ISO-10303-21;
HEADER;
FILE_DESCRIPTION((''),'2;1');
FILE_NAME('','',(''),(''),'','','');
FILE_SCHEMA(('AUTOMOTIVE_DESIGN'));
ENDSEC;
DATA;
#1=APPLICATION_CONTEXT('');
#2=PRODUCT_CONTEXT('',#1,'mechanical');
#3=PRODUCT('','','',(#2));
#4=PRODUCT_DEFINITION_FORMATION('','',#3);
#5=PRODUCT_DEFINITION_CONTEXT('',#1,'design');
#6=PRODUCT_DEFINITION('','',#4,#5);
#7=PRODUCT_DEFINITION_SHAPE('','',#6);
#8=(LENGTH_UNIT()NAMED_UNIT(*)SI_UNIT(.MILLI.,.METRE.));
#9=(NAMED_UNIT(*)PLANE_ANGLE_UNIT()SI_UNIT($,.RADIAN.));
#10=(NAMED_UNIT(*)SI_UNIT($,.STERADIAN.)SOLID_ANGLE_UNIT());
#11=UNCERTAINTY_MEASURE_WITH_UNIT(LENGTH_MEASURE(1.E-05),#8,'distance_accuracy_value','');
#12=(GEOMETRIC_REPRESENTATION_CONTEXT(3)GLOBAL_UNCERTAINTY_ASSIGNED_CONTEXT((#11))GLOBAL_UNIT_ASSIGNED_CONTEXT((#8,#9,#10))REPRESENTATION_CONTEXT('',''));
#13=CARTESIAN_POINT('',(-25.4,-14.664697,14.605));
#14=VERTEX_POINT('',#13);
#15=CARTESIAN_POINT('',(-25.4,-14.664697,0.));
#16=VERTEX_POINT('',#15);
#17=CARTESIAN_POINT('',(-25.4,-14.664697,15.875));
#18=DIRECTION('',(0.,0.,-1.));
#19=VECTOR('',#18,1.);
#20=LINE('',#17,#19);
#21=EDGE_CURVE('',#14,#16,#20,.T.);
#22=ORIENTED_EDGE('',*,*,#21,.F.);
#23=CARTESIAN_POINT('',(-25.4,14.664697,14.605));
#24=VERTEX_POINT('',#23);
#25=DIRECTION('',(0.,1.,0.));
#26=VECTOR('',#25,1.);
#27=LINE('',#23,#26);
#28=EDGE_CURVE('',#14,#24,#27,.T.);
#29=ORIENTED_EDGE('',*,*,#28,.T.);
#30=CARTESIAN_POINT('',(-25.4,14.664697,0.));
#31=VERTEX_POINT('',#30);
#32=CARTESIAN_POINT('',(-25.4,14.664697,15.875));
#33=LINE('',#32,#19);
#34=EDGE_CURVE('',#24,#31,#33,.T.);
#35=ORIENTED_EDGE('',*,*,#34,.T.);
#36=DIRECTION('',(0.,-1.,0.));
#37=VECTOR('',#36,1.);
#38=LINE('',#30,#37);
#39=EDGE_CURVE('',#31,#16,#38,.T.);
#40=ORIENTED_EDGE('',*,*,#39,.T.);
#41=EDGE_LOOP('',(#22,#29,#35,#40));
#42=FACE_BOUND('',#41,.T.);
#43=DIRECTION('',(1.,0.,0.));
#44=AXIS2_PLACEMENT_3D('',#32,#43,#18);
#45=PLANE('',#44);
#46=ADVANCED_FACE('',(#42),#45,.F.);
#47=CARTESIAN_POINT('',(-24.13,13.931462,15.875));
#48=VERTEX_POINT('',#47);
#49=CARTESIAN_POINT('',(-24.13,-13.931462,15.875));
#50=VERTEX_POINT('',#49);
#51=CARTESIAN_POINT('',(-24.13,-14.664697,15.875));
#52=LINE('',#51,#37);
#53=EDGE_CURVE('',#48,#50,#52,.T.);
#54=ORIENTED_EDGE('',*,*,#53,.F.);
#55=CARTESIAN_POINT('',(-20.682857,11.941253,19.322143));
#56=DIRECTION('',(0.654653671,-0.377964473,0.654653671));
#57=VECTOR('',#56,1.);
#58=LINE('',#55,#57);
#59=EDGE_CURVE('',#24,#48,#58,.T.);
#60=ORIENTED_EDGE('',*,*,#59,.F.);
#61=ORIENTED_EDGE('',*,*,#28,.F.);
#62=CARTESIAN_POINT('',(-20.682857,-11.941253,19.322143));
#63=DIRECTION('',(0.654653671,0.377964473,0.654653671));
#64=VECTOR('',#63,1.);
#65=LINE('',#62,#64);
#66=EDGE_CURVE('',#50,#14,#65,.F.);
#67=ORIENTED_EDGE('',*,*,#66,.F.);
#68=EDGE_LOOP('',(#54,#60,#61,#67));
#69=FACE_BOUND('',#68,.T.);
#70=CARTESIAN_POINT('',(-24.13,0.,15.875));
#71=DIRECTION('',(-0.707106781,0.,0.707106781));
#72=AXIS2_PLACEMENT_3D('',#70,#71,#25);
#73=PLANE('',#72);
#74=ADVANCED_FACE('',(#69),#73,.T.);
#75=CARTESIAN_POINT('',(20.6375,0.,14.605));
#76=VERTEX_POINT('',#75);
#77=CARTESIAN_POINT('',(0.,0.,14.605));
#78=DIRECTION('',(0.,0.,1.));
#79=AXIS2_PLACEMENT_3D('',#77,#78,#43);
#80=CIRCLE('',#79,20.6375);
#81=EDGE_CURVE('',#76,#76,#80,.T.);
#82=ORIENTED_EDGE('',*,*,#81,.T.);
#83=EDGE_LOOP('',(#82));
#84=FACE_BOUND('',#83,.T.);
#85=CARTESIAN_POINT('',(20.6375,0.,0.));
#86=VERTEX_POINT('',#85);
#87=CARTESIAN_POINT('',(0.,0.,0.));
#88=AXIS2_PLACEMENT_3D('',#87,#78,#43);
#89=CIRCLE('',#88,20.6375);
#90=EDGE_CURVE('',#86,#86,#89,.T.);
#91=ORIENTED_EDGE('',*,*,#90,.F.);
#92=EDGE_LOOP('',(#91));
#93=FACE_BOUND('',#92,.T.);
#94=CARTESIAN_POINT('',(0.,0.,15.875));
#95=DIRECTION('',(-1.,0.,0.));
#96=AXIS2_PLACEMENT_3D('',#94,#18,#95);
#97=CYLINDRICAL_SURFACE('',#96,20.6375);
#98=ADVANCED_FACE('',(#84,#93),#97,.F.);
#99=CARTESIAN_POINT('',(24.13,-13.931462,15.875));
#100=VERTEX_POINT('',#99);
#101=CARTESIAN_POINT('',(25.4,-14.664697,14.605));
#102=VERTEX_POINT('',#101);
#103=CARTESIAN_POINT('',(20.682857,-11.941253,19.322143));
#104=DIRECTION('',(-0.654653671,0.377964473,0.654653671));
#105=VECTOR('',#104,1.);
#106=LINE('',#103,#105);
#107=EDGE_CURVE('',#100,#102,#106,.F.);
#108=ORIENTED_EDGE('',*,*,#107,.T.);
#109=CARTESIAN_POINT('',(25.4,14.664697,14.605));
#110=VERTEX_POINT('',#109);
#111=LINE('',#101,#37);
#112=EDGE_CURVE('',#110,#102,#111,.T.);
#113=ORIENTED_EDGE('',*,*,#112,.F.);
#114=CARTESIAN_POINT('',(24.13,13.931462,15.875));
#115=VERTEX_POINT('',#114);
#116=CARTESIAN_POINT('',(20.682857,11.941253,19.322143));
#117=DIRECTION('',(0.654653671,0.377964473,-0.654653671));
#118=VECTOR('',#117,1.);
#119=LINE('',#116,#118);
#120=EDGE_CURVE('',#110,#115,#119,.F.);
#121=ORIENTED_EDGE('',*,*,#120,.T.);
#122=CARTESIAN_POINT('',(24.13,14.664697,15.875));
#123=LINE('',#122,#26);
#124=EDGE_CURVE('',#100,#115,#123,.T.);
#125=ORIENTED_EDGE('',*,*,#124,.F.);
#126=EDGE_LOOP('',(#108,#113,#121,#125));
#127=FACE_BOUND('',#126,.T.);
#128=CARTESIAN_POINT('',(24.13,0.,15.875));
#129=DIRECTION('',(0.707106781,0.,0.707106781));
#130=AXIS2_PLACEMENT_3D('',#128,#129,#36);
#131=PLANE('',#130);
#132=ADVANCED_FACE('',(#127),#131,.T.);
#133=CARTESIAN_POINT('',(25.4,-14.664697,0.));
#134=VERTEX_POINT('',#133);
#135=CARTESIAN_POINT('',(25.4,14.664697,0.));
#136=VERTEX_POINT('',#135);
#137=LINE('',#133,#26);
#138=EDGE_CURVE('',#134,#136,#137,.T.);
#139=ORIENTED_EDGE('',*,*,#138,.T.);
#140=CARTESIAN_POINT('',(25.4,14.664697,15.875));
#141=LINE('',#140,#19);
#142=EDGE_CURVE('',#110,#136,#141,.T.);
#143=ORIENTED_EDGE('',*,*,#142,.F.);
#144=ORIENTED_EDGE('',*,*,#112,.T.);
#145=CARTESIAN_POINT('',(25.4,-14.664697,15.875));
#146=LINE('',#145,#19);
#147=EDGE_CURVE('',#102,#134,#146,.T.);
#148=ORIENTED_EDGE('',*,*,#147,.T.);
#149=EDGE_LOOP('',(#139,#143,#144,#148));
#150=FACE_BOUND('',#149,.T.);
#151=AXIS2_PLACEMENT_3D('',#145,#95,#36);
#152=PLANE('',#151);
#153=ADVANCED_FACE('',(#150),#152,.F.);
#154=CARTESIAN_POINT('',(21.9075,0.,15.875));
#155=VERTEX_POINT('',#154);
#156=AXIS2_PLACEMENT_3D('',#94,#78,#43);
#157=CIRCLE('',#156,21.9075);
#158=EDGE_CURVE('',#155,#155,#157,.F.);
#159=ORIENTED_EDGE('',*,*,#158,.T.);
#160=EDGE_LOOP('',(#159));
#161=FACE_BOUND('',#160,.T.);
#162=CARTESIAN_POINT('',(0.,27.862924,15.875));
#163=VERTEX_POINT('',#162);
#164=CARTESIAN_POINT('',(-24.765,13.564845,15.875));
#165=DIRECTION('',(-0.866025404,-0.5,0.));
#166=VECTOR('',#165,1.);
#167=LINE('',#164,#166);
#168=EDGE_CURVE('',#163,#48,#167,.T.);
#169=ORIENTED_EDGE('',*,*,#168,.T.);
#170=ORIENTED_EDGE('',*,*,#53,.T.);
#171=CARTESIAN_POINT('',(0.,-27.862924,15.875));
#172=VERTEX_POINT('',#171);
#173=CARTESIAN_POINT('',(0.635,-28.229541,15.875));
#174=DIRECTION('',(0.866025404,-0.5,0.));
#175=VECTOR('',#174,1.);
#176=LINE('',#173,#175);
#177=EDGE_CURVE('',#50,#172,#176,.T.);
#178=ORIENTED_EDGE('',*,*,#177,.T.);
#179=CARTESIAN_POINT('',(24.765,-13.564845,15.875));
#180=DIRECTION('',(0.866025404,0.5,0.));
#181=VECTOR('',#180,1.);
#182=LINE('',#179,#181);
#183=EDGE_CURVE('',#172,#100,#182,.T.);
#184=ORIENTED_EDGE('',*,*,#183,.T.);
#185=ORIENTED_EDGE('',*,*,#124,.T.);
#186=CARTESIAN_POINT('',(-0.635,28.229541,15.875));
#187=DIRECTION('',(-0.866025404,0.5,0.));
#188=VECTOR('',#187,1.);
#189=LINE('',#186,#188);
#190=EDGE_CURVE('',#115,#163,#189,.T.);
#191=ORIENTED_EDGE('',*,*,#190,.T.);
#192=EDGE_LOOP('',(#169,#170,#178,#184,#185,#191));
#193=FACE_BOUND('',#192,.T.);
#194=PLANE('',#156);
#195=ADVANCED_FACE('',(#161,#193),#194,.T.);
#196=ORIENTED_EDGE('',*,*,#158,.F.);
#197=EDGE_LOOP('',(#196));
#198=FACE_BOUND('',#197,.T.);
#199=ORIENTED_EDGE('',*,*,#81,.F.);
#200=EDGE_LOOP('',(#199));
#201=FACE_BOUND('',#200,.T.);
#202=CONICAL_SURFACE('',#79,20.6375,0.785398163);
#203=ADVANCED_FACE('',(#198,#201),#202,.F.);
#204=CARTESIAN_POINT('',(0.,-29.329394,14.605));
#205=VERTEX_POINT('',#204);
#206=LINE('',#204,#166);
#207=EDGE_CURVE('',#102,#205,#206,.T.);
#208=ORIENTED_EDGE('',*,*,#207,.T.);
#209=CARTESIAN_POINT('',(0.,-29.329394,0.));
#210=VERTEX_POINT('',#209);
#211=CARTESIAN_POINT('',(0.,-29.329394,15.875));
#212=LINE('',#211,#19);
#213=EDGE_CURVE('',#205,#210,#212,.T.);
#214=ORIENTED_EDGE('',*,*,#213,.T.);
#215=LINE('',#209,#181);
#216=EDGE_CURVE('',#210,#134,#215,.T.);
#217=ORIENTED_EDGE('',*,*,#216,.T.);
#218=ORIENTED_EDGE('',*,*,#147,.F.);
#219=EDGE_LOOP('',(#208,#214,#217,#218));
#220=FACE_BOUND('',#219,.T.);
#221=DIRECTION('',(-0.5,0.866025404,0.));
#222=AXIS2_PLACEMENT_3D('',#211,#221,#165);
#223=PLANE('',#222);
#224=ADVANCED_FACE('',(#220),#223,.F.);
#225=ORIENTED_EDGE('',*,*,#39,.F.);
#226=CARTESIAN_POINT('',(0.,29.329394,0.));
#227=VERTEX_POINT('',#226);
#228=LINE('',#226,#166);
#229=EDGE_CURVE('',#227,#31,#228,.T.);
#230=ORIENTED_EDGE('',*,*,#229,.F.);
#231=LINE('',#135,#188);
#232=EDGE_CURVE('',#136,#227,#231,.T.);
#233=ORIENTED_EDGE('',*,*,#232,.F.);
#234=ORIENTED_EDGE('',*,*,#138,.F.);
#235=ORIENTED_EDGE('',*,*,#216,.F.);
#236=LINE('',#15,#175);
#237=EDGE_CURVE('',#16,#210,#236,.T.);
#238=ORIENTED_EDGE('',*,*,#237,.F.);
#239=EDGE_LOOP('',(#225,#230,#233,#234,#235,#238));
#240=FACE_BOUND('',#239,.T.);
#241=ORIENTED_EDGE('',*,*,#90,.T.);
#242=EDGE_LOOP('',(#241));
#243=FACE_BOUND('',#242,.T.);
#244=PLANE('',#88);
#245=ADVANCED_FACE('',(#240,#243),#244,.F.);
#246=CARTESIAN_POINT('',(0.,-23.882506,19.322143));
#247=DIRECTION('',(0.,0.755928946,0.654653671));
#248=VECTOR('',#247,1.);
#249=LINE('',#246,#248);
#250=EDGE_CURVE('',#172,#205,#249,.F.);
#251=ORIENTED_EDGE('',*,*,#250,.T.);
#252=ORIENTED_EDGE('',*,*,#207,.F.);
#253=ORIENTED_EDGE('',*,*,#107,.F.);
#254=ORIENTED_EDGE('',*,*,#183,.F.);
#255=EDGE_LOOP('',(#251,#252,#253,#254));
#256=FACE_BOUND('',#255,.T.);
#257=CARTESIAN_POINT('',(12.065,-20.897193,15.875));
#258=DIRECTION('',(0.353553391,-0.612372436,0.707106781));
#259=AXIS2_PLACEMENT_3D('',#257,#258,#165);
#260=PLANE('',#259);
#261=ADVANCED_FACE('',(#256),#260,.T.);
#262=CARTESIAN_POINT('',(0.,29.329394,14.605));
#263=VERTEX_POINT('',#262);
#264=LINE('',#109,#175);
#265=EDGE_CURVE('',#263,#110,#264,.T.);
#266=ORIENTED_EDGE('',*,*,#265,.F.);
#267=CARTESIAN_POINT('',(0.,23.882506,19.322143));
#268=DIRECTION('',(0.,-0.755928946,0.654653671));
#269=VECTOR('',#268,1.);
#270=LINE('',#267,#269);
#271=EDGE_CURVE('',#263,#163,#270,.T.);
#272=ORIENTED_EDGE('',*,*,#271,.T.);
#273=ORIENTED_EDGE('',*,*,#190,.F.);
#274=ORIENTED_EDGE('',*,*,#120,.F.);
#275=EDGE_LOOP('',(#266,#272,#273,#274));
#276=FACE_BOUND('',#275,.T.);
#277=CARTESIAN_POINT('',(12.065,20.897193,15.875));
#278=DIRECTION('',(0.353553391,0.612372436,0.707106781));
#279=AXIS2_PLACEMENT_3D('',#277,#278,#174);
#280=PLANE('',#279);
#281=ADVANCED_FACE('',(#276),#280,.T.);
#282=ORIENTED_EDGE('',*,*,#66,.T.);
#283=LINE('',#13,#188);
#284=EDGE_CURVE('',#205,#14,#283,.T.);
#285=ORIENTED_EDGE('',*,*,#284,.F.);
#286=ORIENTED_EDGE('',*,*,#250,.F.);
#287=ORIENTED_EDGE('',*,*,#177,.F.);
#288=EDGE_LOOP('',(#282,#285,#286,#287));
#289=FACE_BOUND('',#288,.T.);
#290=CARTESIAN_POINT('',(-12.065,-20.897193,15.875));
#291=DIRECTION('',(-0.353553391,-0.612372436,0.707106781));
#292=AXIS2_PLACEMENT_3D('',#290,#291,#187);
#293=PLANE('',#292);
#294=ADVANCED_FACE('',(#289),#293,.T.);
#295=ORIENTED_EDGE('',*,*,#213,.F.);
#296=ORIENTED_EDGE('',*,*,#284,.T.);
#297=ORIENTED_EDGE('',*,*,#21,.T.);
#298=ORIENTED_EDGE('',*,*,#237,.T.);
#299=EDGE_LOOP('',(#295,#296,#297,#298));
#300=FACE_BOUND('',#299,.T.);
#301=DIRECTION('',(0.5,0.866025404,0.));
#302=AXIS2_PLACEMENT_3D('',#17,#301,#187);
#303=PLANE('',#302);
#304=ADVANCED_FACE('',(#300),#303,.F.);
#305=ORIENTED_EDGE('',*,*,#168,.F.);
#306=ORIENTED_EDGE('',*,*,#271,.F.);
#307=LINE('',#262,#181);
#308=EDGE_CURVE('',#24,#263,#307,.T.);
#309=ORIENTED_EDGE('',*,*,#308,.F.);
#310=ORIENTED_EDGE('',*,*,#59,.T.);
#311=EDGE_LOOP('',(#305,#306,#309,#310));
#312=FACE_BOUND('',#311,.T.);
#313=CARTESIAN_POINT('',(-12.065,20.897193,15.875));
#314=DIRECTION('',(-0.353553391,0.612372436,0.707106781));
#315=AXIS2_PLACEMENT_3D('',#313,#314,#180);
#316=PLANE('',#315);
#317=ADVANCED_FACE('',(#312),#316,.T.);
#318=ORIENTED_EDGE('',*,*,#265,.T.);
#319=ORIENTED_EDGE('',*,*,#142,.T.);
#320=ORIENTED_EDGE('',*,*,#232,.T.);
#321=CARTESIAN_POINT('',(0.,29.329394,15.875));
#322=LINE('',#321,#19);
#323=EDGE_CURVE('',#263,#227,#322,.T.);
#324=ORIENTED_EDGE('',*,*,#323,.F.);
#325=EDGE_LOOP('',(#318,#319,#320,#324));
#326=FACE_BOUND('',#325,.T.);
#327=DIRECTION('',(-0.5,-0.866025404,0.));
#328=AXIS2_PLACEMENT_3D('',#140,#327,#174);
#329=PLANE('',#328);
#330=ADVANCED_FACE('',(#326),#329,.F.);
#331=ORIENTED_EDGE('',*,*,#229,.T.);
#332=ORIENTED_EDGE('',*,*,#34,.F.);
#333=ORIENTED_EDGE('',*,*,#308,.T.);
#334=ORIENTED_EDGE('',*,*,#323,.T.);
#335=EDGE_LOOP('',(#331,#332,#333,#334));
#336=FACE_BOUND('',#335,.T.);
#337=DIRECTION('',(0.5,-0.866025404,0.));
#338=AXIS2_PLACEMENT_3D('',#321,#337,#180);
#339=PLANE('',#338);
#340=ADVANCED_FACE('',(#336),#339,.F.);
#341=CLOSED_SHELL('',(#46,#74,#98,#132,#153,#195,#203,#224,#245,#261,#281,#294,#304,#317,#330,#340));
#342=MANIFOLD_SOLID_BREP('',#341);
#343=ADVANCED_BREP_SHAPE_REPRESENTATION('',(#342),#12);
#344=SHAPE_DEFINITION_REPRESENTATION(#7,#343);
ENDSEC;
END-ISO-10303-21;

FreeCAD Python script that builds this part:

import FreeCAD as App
import Part
import Sketcher
from FreeCAD import Vector
Q = App.Units.Quantity


def edges_at(feature, points):
    """Names of the edges that pass closest to the given points."""
    edges = feature.Shape.Edges
    near = lambda p: min(range(len(edges)), key=lambda i: edges[i].distToShape(Part.Vertex(*p))[0])
    return sorted({f"Edge{near(p) + 1}" for p in points})


def add_polygon(sketch, points):
    """Adds a closed chain of lines whose ends are joined by coincident constraints."""
    first, n = sketch.GeometryCount, len(points)
    for a, b in zip(points, points[1:] + points[:1]):
        sketch.addGeometry(Part.LineSegment(App.Vector(*a, 0), App.Vector(*b, 0)), False)
    for i in range(n):
        sketch.addConstraint(Sketcher.Constraint("Coincident", first + i, 2, first + (i + 1) % n, 1))

doc = App.newDocument("Part")
body = doc.addObject("PartDesign::Body", "Body")

# Sketch on XY plane
sketch1 = body.newObject("Sketcher::SketchObject", "Sketch")
sketch1.AttachmentSupport = (doc.getObject("XY_Plane"), [""])
sketch1.MapMode = "FlatFace"
add_polygon(sketch1, [(0, 29), (-25, 15), (-25, -15), (0, -29), (25, -15), (25, 15)])  # lines 0-5
sketch1.addGeometry(Part.Circle(Vector(0, 0, 0), Vector(0, 0, 1), 21), False)  # 6
sketch1.addConstraint(Sketcher.Constraint("Vertical", 1))
sketch1.addConstraint(Sketcher.Constraint("Vertical", 4))
sketch1.addConstraint(Sketcher.Constraint("Coincident", 6, 3, -1, 1))
sketch1.addConstraint(Sketcher.Constraint("Symmetric", 0, 2, 3, 2, -1, 1))
sketch1.addConstraint(Sketcher.Constraint("Symmetric", 2, 2, 5, 2, -1, 1))
sketch1.addConstraint(Sketcher.Constraint("PointOnObject", 2, 2, -2))
sketch1.addConstraint(Sketcher.Constraint("Parallel", 2, 5))
sketch1.addConstraint(Sketcher.Constraint("Horizontal", 1, 2, 3, 2))
sketch1.addConstraint(Sketcher.Constraint("Diameter", 6, Q("1.625 in")))
sketch1.addConstraint(Sketcher.Constraint("DistanceX", 0, 2, -1, 1, Q("1 in")))
sketch1.addConstraint(Sketcher.Constraint("Angle", 0, Q("-150 deg")))
sketch1.addConstraint(Sketcher.Constraint("DistanceY", 1, 2, 1, 1, Q("29.329394 mm")))
pad1 = body.newObject("PartDesign::Pad", "Pad")
pad1.Profile = sketch1
pad1.Length = Q("0.625 in")
doc.recompute()

chamfer = body.newObject("PartDesign::Chamfer", "Chamfer")
chamfer.Base = (pad1, edges_at(pad1, [
    (-25.4, 0, 15.875),
    (-12.7, -21.997, 15.875),
    (12.7, -21.997, 15.875),
    (-20.637, 0, 15.875),
    (25.4, 0, 15.875),
    (12.7, 21.997, 15.875),
    (-12.7, 21.997, 15.875),
]))
chamfer.Size = Q("0.05 in")

doc.recompute()
